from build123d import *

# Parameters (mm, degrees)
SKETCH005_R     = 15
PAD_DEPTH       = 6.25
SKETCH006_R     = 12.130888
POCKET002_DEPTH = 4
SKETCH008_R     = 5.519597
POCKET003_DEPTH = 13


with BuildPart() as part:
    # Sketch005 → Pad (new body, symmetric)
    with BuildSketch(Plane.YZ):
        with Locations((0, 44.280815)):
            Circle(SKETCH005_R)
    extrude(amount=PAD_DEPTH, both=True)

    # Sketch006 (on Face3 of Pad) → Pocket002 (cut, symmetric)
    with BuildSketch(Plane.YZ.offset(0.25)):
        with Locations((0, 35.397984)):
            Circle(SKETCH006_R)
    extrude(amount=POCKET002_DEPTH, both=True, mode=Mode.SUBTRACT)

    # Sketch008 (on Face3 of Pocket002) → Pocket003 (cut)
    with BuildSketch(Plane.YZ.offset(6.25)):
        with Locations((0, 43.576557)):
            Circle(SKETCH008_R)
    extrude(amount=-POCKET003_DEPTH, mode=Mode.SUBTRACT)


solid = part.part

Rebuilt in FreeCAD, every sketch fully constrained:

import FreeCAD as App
import Part
import Sketcher
Q = App.Units.Quantity

doc = App.newDocument("Part")
body = doc.addObject("PartDesign::Body", "Body")

sketch1 = body.newObject("Sketcher::SketchObject", "Sketch")
sketch1.AttachmentSupport = (doc.getObject("YZ_Plane"), [""])
sketch1.MapMode = "FlatFace"
sketch1.addGeometry(Part.Circle(App.Vector(0, 44, 0), App.Vector(0, 0, 1), 15), False)
sketch1.addConstraint([
    Sketcher.Constraint("PointOnObject", 0, 3, -2),
    Sketcher.Constraint("Diameter", 0, Q("30 mm")),
    Sketcher.Constraint("DistanceY", -1, 1, 0, 3, Q("44.280815 mm")),
])
pad1 = body.newObject("PartDesign::Pad", "Pad")
pad1.Profile = sketch1
pad1.Length = 12.5
pad1.Midplane = True

sketch2 = body.newObject("Sketcher::SketchObject", "Sketch001")
sketch2.AttachmentSupport = (doc.getObject("YZ_Plane"), [""])
sketch2.MapMode = "FlatFace"
sketch2.AttachmentOffset = App.Placement(App.Vector(0, 0, 0.25), App.Rotation())
sketch2.addGeometry(Part.Circle(App.Vector(0, 35, 0), App.Vector(0, 0, 1), 12), False)
sketch2.addConstraint([
    Sketcher.Constraint("PointOnObject", 0, 3, -2),
    Sketcher.Constraint("Diameter", 0, Q("24.261776 mm")),
    Sketcher.Constraint("DistanceY", -1, 1, 0, 3, Q("35.397984 mm")),
])
pocket1 = body.newObject("PartDesign::Pocket", "Pocket")
pocket1.Profile = sketch2
pocket1.Length = 8
pocket1.Midplane = True

sketch3 = body.newObject("Sketcher::SketchObject", "Sketch002")
sketch3.AttachmentSupport = (doc.getObject("YZ_Plane"), [""])
sketch3.MapMode = "FlatFace"
sketch3.AttachmentOffset = App.Placement(App.Vector(0, 0, 6.25), App.Rotation())
sketch3.addGeometry(Part.Circle(App.Vector(0, 44, 0), App.Vector(0, 0, 1), 6), False)
sketch3.addConstraint([
    Sketcher.Constraint("PointOnObject", 0, 3, -2),
    Sketcher.Constraint("Diameter", 0, Q("11.039194 mm")),
    Sketcher.Constraint("DistanceY", -1, 1, 0, 3, Q("43.576557 mm")),
])
pocket2 = body.newObject("PartDesign::Pocket", "Pocket001")
pocket2.Profile = sketch3
pocket2.Length = 13

doc.recompute()
